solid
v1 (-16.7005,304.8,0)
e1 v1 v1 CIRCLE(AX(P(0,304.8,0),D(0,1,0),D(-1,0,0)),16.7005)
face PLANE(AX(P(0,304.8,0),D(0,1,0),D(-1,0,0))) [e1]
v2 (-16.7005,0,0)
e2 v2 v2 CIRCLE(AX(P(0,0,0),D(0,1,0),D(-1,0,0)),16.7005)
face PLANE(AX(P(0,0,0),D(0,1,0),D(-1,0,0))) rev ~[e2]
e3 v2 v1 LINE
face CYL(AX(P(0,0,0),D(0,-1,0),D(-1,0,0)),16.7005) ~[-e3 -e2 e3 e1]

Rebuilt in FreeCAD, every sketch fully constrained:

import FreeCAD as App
import Part
import Sketcher
from FreeCAD import Vector
Q = App.Units.Quantity

doc = App.newDocument("Part")
body = doc.addObject("PartDesign::Body", "Body")

sketch1 = body.newObject("Sketcher::SketchObject", "Sketch")
sketch1.AttachmentSupport = (doc.getObject("XZ_Plane"), [""])
sketch1.MapMode = "FlatFace"
sketch1.addGeometry(Part.Circle(Vector(0, 0, 0), Vector(0, 0, 1), 17), False)
sketch1.addConstraint([
    Sketcher.Constraint("Coincident", 0, 3, -1, 1),
    Sketcher.Constraint("Diameter", 0, Q("1.315 in")),
])
pad1 = body.newObject("PartDesign::Pad", "Pad")
pad1.Profile = sketch1
pad1.Length = Q("12 in")
pad1.Reversed = True

doc.recompute()
